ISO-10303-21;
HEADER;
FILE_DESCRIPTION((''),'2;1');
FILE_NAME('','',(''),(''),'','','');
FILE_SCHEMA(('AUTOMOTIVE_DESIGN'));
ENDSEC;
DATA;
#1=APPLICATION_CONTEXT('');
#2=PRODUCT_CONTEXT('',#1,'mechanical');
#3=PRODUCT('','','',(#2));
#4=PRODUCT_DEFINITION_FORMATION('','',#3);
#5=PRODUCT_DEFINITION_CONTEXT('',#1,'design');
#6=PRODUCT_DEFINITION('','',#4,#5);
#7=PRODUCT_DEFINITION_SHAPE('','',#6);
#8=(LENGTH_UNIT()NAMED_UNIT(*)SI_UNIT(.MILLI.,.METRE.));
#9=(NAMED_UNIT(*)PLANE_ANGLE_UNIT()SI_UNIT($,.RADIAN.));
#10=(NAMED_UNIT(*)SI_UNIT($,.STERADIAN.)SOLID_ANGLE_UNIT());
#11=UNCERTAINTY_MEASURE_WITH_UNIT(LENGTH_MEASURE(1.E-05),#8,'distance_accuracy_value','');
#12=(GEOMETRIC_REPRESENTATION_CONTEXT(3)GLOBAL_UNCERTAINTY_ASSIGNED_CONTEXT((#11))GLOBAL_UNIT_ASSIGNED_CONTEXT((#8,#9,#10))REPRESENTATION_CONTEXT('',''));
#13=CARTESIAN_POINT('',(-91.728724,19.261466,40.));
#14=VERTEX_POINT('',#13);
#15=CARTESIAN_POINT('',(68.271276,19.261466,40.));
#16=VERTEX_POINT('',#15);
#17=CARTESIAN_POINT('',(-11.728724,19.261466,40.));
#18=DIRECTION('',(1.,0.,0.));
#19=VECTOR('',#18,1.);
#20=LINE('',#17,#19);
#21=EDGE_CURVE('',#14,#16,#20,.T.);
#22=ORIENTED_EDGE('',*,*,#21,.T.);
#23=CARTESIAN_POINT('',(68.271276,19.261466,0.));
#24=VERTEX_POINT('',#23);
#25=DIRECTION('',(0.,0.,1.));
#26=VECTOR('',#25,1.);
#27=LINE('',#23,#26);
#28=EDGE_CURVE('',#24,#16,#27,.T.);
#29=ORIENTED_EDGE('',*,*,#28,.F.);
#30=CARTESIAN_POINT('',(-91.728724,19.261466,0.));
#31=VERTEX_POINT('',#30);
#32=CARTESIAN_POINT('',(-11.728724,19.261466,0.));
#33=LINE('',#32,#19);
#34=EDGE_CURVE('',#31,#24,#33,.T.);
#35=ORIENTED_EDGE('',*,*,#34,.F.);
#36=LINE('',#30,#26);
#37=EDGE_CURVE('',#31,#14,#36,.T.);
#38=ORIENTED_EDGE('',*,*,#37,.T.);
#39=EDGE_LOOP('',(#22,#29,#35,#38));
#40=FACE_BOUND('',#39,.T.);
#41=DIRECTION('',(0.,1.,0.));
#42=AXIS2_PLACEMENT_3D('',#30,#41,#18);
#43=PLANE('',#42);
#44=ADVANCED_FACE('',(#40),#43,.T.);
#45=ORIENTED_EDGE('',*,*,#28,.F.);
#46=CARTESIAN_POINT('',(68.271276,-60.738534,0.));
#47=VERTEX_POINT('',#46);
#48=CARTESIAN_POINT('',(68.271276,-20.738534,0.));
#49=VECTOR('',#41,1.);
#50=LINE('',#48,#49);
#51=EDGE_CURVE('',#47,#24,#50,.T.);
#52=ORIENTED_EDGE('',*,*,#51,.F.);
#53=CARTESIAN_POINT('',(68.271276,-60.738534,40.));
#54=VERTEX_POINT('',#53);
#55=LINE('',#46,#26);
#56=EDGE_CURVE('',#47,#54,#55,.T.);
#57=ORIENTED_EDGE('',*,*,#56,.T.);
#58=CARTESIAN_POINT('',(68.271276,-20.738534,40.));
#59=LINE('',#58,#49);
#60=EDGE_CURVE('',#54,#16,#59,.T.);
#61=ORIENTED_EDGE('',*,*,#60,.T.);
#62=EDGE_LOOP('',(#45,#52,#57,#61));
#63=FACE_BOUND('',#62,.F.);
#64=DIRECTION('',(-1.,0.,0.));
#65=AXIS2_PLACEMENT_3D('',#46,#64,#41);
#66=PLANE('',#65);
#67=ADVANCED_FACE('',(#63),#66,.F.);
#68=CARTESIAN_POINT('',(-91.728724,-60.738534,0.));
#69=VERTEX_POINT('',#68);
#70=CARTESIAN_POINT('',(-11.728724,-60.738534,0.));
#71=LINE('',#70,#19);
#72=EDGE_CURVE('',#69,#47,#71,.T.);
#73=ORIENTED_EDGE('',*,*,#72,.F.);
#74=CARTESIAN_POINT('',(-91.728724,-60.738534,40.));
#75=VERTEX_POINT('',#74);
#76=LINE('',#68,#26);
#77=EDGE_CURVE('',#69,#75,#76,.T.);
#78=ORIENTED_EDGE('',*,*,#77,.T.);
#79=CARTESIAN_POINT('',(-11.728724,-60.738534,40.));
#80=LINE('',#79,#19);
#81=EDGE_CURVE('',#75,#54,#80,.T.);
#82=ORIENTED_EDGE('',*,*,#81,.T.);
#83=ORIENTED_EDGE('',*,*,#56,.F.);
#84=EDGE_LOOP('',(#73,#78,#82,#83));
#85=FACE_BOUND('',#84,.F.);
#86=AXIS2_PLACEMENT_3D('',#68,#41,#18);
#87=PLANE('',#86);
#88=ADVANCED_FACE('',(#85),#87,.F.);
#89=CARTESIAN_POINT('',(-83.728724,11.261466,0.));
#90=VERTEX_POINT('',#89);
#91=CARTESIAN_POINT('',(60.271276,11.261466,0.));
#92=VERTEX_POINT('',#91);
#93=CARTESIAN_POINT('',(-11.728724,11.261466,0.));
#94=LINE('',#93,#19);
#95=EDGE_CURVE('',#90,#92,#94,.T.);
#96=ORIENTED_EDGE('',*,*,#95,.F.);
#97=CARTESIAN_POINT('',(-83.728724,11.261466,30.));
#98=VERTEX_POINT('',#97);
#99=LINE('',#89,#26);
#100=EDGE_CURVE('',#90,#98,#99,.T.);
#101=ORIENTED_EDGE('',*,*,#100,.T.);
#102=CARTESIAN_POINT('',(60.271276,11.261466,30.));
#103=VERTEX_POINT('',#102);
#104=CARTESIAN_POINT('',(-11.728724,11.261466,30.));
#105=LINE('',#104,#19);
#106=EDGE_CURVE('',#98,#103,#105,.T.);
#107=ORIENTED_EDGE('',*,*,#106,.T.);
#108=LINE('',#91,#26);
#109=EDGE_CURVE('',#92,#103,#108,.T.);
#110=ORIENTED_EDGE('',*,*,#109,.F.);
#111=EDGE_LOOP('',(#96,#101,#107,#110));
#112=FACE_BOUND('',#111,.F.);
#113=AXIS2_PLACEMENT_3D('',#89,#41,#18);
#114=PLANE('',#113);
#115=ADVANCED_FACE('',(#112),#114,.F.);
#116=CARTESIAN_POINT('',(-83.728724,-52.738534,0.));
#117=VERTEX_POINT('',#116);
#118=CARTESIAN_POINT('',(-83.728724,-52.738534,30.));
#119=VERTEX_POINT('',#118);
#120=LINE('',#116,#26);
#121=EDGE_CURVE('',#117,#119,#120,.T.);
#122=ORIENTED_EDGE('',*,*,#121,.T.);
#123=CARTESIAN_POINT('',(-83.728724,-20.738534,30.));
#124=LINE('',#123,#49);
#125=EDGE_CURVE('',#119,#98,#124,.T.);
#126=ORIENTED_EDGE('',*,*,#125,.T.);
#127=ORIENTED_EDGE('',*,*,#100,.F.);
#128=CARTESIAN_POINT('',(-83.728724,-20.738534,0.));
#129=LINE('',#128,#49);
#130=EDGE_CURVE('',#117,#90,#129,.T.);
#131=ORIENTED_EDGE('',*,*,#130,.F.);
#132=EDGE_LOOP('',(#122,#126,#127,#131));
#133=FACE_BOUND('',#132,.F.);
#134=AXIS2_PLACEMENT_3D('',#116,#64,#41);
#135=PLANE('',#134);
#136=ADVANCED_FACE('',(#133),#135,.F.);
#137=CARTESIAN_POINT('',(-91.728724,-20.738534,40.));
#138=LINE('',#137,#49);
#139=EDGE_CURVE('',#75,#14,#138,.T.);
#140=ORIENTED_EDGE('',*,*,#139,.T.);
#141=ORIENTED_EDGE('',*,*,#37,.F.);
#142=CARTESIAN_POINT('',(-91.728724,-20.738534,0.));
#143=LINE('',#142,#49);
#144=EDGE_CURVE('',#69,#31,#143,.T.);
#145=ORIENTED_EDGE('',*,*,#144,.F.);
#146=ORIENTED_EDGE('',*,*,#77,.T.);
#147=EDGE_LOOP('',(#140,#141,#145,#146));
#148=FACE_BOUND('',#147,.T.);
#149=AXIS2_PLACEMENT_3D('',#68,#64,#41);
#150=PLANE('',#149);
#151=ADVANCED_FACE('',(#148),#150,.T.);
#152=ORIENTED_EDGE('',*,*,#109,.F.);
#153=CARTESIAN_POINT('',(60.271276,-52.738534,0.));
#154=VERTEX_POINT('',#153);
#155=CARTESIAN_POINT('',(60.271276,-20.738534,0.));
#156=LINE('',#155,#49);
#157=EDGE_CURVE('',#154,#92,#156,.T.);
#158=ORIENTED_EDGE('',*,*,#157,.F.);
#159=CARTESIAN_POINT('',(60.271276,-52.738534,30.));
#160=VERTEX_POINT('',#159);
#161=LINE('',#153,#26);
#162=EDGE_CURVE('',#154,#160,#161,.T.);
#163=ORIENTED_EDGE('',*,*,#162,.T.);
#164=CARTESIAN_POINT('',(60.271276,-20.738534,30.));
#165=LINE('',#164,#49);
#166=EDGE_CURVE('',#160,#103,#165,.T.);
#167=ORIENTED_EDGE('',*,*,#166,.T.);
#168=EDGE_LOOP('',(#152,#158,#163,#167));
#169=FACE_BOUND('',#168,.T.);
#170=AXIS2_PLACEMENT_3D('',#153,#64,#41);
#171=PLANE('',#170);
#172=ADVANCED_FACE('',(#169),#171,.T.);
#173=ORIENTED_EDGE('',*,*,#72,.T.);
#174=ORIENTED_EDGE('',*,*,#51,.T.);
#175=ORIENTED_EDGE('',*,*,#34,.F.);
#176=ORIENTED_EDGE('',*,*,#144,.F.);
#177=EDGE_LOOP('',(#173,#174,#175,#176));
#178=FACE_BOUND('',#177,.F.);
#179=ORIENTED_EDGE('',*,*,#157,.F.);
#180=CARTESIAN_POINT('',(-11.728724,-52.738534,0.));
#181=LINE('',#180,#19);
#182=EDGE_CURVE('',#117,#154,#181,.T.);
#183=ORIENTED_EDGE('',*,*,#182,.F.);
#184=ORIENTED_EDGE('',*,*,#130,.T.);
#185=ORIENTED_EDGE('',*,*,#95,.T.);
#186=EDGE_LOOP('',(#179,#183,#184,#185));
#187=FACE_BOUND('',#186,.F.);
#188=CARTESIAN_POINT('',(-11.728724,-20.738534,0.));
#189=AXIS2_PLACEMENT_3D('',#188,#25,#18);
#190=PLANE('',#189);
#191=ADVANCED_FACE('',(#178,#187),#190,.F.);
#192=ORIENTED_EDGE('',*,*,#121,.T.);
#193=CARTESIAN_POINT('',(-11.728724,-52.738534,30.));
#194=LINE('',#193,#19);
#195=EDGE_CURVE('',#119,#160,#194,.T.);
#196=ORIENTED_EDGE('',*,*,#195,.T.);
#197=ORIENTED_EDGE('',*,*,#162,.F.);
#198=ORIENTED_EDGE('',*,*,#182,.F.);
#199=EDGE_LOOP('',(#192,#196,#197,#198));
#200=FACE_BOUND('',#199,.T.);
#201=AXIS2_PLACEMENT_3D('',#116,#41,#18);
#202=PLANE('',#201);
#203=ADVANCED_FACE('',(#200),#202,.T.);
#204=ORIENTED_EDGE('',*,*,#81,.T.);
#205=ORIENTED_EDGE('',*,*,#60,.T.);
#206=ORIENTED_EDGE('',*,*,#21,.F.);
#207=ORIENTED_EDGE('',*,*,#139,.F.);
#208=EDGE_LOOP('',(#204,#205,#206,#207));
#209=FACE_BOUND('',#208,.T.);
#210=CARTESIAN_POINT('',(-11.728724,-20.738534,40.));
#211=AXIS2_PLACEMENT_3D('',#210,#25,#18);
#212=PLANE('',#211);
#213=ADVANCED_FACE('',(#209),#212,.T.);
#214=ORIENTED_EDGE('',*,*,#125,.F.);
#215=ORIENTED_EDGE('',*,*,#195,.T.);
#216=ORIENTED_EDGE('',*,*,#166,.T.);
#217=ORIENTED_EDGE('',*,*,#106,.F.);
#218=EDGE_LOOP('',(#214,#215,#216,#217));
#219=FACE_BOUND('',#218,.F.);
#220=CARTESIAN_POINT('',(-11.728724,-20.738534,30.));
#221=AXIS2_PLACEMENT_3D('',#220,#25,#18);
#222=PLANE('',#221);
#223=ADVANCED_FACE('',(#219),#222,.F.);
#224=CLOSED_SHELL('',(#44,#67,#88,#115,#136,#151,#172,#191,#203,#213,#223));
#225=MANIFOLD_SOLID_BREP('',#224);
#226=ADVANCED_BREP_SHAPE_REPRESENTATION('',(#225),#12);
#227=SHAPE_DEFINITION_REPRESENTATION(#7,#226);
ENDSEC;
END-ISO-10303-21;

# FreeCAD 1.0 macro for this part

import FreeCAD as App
import Part
import Sketcher
Q = App.Units.Quantity

doc = App.newDocument("Part")
body = doc.addObject("PartDesign::Body", "Body")

# Sketch on XY plane
sketch1 = doc.addObject("Sketcher::SketchObject", "Sketch")
body.addObject(sketch1)
sketch1.AttachmentSupport = (doc.XY_Plane, [""])
sketch1.MapMode = "FlatFace"
sketch1.addGeometry(Part.LineSegment(App.Vector(-92, 19, 0), App.Vector(-92, -61, 0)), False)
sketch1.addGeometry(Part.LineSegment(App.Vector(-92, -61, 0), App.Vector(68, -61, 0)), False)
sketch1.addGeometry(Part.LineSegment(App.Vector(68, -61, 0), App.Vector(68, 19, 0)), False)
sketch1.addGeometry(Part.LineSegment(App.Vector(68, 19, 0), App.Vector(-92, 19, 0)), False)
sketch1.addConstraint(Sketcher.Constraint("Coincident", 0, 2, 1, 1))
sketch1.addConstraint(Sketcher.Constraint("Coincident", 1, 2, 2, 1))
sketch1.addConstraint(Sketcher.Constraint("Coincident", 2, 2, 3, 1))
sketch1.addConstraint(Sketcher.Constraint("Coincident", 3, 2, 0, 1))
sketch1.addConstraint(Sketcher.Constraint("Vertical", 0))
sketch1.addConstraint(Sketcher.Constraint("Horizontal", 1))
sketch1.addConstraint(Sketcher.Constraint("Vertical", 2))
sketch1.addConstraint(Sketcher.Constraint("Horizontal", 3))
sketch1.addConstraint(Sketcher.Constraint("DistanceX", 1, 1, 1, 2, Q("160 mm")))
sketch1.addConstraint(Sketcher.Constraint("DistanceY", 0, 2, 0, 1, Q("80 mm")))
sketch1.addConstraint(Sketcher.Constraint("DistanceX", 0, 2, -1, 1, Q("91.728724 mm")))
sketch1.addConstraint(Sketcher.Constraint("DistanceY", 0, 2, -1, 1, Q("60.738534 mm")))
pad1 = doc.addObject("PartDesign::Pad", "Pad")
body.addObject(pad1)
pad1.Profile = sketch1
pad1.Length = 40

# Sketch on XY plane
sketch2 = doc.addObject("Sketcher::SketchObject", "Sketch001")
body.addObject(sketch2)
sketch2.AttachmentSupport = (doc.XY_Plane, [""])
sketch2.MapMode = "FlatFace"
sketch2.addGeometry(Part.LineSegment(App.Vector(-84, 11, 0), App.Vector(-84, -53, 0)), False)
sketch2.addGeometry(Part.LineSegment(App.Vector(-84, -53, 0), App.Vector(60, -53, 0)), False)
sketch2.addGeometry(Part.LineSegment(App.Vector(60, -53, 0), App.Vector(60, 11, 0)), False)
sketch2.addGeometry(Part.LineSegment(App.Vector(60, 11, 0), App.Vector(-84, 11, 0)), False)
sketch2.addConstraint(Sketcher.Constraint("Coincident", 0, 2, 1, 1))
sketch2.addConstraint(Sketcher.Constraint("Coincident", 1, 2, 2, 1))
sketch2.addConstraint(Sketcher.Constraint("Coincident", 2, 2, 3, 1))
sketch2.addConstraint(Sketcher.Constraint("Coincident", 3, 2, 0, 1))
sketch2.addConstraint(Sketcher.Constraint("Vertical", 0))
sketch2.addConstraint(Sketcher.Constraint("Horizontal", 1))
sketch2.addConstraint(Sketcher.Constraint("Vertical", 2))
sketch2.addConstraint(Sketcher.Constraint("Horizontal", 3))
sketch2.addConstraint(Sketcher.Constraint("DistanceX", 1, 1, 1, 2, Q("144 mm")))
sketch2.addConstraint(Sketcher.Constraint("DistanceY", 0, 2, 0, 1, Q("64 mm")))
sketch2.addConstraint(Sketcher.Constraint("DistanceX", 0, 2, -1, 1, Q("83.728724 mm")))
sketch2.addConstraint(Sketcher.Constraint("DistanceY", 0, 2, -1, 1, Q("52.738534 mm")))
pocket1 = doc.addObject("PartDesign::Pocket", "Pocket")
body.addObject(pocket1)
pocket1.Profile = sketch2
pocket1.Length = 30
pocket1.Reversed = True

doc.recompute()
